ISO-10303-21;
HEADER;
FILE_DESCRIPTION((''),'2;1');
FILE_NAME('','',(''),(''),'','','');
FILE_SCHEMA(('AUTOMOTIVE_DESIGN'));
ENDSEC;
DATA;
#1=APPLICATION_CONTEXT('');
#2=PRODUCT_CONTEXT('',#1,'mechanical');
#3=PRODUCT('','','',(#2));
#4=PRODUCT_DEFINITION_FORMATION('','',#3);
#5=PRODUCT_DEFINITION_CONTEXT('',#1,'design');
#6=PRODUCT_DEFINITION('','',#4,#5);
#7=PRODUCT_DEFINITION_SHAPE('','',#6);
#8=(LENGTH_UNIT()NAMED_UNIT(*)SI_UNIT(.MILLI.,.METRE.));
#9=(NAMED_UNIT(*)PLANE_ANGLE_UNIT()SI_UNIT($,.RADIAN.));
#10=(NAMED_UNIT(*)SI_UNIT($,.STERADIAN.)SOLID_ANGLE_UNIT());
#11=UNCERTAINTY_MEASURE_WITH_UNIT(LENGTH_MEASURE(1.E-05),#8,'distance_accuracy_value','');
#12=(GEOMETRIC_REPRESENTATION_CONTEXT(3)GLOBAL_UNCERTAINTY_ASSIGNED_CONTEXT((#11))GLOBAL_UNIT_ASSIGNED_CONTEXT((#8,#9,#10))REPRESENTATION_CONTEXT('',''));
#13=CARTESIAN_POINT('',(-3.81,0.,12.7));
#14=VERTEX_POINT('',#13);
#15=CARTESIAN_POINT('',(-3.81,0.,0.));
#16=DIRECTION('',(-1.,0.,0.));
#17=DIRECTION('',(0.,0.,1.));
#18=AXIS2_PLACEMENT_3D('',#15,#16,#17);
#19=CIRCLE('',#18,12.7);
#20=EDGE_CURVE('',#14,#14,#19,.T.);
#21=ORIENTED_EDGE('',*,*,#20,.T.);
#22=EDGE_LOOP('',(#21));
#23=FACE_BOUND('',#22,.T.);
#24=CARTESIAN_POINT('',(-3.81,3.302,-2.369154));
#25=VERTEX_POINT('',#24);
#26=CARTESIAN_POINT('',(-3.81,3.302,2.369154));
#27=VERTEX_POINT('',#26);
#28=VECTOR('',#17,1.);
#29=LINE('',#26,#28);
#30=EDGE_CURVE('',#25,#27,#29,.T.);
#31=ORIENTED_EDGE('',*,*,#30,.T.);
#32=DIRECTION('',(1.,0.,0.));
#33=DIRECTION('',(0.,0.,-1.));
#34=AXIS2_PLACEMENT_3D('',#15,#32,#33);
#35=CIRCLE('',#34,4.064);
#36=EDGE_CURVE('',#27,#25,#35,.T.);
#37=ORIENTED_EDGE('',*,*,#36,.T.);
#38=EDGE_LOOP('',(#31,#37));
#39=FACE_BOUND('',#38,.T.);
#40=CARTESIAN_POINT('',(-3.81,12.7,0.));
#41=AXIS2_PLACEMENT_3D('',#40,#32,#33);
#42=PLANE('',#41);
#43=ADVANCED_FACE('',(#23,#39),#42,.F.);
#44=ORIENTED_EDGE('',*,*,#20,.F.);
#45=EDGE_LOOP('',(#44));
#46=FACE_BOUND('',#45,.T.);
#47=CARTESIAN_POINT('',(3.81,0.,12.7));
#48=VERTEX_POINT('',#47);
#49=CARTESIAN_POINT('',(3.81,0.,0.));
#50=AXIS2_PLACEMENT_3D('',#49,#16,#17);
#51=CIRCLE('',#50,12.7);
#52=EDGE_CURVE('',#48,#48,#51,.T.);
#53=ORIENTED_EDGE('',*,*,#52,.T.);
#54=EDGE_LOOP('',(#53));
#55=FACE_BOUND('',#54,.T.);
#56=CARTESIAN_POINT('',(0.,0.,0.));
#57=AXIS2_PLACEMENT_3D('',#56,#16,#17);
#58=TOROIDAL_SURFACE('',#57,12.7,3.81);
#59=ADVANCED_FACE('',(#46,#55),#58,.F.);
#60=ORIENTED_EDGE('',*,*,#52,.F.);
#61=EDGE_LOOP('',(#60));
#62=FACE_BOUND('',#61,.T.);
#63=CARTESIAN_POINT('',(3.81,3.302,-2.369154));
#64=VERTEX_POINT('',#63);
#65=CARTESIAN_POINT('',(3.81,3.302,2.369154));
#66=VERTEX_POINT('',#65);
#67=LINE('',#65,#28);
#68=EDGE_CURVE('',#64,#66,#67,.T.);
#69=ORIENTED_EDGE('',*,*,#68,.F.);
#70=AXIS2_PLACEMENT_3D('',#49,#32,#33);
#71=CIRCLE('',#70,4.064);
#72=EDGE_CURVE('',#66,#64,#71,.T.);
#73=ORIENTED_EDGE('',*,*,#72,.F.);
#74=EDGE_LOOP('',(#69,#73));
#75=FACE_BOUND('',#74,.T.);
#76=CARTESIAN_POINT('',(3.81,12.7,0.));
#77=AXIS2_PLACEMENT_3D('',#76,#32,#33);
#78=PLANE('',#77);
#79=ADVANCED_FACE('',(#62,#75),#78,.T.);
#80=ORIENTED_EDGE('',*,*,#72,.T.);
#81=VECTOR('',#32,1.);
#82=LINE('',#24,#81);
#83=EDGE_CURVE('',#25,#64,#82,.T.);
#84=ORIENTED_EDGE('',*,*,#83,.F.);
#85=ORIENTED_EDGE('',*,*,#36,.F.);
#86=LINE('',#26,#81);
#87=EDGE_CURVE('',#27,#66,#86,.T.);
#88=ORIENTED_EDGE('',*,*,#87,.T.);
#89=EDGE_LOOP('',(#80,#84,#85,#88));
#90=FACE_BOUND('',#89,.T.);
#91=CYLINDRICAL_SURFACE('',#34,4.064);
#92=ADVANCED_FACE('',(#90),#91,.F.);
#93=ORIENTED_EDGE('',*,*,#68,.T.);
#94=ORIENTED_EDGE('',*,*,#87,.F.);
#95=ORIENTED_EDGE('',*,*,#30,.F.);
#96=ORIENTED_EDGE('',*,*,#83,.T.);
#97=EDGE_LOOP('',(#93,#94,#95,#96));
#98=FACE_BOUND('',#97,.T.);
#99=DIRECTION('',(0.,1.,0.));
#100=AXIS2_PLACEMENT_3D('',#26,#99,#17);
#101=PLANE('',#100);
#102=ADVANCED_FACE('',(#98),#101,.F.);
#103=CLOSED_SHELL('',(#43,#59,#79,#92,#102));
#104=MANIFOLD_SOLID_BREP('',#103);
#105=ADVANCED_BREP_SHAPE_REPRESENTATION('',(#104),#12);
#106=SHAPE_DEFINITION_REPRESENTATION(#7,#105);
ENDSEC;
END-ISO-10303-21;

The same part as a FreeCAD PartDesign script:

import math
import FreeCAD as App
import Part
import Sketcher

V = App.Vector
Q = App.Units.Quantity

doc = App.newDocument("Part")
body = doc.addObject("PartDesign::Body", "Body")

sketch1 = doc.addObject("Sketcher::SketchObject", "Sketch")
body.addObject(sketch1)
sketch1.AttachmentSupport = (doc.XY_Plane, [""])
sketch1.MapMode = "FlatFace"
sketch1.addGeometry([
    Part.LineSegment(V(-3.8, 12.7, 0), V(-3.8, 0, 0)),
    Part.LineSegment(V(-3.8, 0, 0), V(3.8, 0, 0)),
    Part.LineSegment(V(3.8, 0, 0), V(3.8, 12.7, 0)),
    Part.ArcOfCircle(Part.Circle(V(0, 12.7, 0), V(0, 0, 1), 3.8), math.radians(-180), math.radians(0)),
], False)
sketch1.addConstraint([
    Sketcher.Constraint("Coincident", 0, 2, 1, 1),
    Sketcher.Constraint("Coincident", 1, 2, 2, 1),
    Sketcher.Constraint("Tangent", 2, 2, 3, 2),
    Sketcher.Constraint("Tangent", 3, 1, 0, 1),
    Sketcher.Constraint("Vertical", 0),
    Sketcher.Constraint("Horizontal", 1),
    Sketcher.Constraint("Vertical", 2),
    Sketcher.Constraint("Symmetric", 0, 2, 1, 2, -1, 1),
    Sketcher.Constraint("Radius", 3, Q("0.15 in")),
    Sketcher.Constraint("DistanceY", 0, 2, 0, 1, Q("0.5 in")),
])
revolution = doc.addObject("PartDesign::Revolution", "Revolution")
body.addObject(revolution)
revolution.Profile = sketch1
revolution.ReferenceAxis = (sketch1, ["H_Axis"])
revolution.Angle = 360

sketch2 = doc.addObject("Sketcher::SketchObject", "Sketch001")
body.addObject(sketch2)
sketch2.AttachmentSupport = (doc.YZ_Plane, [""])
sketch2.MapMode = "FlatFace"
sketch2.AttachmentOffset = App.Placement(V(0, 0, 0.15 * 25.4), App.Rotation())
sketch2.addGeometry([
    Part.LineSegment(V(3.3, -2.4, 0), V(3.3, 2.4, 0)),
    Part.ArcOfCircle(Part.Circle(V(0, 0, 0), V(0, 0, 1), 4.1), math.radians(36), math.radians(324)),
], False)
sketch2.addConstraint([
    Sketcher.Constraint("Coincident", 0, 1, 1, 2),
    Sketcher.Constraint("Coincident", 1, 1, 0, 2),
    Sketcher.Constraint("Vertical", 0),
    Sketcher.Constraint("Coincident", 1, 3, -1, 1),
    Sketcher.Constraint("Radius", 1, Q("0.16 in")),
    Sketcher.Constraint("DistanceX", -1, 1, 0, 1, Q("0.13 in")),
])
pocket1 = doc.addObject("PartDesign::Pocket", "Pocket")
body.addObject(pocket1)
pocket1.Profile = sketch2
pocket1.Type = "ThroughAll"

doc.recompute()
